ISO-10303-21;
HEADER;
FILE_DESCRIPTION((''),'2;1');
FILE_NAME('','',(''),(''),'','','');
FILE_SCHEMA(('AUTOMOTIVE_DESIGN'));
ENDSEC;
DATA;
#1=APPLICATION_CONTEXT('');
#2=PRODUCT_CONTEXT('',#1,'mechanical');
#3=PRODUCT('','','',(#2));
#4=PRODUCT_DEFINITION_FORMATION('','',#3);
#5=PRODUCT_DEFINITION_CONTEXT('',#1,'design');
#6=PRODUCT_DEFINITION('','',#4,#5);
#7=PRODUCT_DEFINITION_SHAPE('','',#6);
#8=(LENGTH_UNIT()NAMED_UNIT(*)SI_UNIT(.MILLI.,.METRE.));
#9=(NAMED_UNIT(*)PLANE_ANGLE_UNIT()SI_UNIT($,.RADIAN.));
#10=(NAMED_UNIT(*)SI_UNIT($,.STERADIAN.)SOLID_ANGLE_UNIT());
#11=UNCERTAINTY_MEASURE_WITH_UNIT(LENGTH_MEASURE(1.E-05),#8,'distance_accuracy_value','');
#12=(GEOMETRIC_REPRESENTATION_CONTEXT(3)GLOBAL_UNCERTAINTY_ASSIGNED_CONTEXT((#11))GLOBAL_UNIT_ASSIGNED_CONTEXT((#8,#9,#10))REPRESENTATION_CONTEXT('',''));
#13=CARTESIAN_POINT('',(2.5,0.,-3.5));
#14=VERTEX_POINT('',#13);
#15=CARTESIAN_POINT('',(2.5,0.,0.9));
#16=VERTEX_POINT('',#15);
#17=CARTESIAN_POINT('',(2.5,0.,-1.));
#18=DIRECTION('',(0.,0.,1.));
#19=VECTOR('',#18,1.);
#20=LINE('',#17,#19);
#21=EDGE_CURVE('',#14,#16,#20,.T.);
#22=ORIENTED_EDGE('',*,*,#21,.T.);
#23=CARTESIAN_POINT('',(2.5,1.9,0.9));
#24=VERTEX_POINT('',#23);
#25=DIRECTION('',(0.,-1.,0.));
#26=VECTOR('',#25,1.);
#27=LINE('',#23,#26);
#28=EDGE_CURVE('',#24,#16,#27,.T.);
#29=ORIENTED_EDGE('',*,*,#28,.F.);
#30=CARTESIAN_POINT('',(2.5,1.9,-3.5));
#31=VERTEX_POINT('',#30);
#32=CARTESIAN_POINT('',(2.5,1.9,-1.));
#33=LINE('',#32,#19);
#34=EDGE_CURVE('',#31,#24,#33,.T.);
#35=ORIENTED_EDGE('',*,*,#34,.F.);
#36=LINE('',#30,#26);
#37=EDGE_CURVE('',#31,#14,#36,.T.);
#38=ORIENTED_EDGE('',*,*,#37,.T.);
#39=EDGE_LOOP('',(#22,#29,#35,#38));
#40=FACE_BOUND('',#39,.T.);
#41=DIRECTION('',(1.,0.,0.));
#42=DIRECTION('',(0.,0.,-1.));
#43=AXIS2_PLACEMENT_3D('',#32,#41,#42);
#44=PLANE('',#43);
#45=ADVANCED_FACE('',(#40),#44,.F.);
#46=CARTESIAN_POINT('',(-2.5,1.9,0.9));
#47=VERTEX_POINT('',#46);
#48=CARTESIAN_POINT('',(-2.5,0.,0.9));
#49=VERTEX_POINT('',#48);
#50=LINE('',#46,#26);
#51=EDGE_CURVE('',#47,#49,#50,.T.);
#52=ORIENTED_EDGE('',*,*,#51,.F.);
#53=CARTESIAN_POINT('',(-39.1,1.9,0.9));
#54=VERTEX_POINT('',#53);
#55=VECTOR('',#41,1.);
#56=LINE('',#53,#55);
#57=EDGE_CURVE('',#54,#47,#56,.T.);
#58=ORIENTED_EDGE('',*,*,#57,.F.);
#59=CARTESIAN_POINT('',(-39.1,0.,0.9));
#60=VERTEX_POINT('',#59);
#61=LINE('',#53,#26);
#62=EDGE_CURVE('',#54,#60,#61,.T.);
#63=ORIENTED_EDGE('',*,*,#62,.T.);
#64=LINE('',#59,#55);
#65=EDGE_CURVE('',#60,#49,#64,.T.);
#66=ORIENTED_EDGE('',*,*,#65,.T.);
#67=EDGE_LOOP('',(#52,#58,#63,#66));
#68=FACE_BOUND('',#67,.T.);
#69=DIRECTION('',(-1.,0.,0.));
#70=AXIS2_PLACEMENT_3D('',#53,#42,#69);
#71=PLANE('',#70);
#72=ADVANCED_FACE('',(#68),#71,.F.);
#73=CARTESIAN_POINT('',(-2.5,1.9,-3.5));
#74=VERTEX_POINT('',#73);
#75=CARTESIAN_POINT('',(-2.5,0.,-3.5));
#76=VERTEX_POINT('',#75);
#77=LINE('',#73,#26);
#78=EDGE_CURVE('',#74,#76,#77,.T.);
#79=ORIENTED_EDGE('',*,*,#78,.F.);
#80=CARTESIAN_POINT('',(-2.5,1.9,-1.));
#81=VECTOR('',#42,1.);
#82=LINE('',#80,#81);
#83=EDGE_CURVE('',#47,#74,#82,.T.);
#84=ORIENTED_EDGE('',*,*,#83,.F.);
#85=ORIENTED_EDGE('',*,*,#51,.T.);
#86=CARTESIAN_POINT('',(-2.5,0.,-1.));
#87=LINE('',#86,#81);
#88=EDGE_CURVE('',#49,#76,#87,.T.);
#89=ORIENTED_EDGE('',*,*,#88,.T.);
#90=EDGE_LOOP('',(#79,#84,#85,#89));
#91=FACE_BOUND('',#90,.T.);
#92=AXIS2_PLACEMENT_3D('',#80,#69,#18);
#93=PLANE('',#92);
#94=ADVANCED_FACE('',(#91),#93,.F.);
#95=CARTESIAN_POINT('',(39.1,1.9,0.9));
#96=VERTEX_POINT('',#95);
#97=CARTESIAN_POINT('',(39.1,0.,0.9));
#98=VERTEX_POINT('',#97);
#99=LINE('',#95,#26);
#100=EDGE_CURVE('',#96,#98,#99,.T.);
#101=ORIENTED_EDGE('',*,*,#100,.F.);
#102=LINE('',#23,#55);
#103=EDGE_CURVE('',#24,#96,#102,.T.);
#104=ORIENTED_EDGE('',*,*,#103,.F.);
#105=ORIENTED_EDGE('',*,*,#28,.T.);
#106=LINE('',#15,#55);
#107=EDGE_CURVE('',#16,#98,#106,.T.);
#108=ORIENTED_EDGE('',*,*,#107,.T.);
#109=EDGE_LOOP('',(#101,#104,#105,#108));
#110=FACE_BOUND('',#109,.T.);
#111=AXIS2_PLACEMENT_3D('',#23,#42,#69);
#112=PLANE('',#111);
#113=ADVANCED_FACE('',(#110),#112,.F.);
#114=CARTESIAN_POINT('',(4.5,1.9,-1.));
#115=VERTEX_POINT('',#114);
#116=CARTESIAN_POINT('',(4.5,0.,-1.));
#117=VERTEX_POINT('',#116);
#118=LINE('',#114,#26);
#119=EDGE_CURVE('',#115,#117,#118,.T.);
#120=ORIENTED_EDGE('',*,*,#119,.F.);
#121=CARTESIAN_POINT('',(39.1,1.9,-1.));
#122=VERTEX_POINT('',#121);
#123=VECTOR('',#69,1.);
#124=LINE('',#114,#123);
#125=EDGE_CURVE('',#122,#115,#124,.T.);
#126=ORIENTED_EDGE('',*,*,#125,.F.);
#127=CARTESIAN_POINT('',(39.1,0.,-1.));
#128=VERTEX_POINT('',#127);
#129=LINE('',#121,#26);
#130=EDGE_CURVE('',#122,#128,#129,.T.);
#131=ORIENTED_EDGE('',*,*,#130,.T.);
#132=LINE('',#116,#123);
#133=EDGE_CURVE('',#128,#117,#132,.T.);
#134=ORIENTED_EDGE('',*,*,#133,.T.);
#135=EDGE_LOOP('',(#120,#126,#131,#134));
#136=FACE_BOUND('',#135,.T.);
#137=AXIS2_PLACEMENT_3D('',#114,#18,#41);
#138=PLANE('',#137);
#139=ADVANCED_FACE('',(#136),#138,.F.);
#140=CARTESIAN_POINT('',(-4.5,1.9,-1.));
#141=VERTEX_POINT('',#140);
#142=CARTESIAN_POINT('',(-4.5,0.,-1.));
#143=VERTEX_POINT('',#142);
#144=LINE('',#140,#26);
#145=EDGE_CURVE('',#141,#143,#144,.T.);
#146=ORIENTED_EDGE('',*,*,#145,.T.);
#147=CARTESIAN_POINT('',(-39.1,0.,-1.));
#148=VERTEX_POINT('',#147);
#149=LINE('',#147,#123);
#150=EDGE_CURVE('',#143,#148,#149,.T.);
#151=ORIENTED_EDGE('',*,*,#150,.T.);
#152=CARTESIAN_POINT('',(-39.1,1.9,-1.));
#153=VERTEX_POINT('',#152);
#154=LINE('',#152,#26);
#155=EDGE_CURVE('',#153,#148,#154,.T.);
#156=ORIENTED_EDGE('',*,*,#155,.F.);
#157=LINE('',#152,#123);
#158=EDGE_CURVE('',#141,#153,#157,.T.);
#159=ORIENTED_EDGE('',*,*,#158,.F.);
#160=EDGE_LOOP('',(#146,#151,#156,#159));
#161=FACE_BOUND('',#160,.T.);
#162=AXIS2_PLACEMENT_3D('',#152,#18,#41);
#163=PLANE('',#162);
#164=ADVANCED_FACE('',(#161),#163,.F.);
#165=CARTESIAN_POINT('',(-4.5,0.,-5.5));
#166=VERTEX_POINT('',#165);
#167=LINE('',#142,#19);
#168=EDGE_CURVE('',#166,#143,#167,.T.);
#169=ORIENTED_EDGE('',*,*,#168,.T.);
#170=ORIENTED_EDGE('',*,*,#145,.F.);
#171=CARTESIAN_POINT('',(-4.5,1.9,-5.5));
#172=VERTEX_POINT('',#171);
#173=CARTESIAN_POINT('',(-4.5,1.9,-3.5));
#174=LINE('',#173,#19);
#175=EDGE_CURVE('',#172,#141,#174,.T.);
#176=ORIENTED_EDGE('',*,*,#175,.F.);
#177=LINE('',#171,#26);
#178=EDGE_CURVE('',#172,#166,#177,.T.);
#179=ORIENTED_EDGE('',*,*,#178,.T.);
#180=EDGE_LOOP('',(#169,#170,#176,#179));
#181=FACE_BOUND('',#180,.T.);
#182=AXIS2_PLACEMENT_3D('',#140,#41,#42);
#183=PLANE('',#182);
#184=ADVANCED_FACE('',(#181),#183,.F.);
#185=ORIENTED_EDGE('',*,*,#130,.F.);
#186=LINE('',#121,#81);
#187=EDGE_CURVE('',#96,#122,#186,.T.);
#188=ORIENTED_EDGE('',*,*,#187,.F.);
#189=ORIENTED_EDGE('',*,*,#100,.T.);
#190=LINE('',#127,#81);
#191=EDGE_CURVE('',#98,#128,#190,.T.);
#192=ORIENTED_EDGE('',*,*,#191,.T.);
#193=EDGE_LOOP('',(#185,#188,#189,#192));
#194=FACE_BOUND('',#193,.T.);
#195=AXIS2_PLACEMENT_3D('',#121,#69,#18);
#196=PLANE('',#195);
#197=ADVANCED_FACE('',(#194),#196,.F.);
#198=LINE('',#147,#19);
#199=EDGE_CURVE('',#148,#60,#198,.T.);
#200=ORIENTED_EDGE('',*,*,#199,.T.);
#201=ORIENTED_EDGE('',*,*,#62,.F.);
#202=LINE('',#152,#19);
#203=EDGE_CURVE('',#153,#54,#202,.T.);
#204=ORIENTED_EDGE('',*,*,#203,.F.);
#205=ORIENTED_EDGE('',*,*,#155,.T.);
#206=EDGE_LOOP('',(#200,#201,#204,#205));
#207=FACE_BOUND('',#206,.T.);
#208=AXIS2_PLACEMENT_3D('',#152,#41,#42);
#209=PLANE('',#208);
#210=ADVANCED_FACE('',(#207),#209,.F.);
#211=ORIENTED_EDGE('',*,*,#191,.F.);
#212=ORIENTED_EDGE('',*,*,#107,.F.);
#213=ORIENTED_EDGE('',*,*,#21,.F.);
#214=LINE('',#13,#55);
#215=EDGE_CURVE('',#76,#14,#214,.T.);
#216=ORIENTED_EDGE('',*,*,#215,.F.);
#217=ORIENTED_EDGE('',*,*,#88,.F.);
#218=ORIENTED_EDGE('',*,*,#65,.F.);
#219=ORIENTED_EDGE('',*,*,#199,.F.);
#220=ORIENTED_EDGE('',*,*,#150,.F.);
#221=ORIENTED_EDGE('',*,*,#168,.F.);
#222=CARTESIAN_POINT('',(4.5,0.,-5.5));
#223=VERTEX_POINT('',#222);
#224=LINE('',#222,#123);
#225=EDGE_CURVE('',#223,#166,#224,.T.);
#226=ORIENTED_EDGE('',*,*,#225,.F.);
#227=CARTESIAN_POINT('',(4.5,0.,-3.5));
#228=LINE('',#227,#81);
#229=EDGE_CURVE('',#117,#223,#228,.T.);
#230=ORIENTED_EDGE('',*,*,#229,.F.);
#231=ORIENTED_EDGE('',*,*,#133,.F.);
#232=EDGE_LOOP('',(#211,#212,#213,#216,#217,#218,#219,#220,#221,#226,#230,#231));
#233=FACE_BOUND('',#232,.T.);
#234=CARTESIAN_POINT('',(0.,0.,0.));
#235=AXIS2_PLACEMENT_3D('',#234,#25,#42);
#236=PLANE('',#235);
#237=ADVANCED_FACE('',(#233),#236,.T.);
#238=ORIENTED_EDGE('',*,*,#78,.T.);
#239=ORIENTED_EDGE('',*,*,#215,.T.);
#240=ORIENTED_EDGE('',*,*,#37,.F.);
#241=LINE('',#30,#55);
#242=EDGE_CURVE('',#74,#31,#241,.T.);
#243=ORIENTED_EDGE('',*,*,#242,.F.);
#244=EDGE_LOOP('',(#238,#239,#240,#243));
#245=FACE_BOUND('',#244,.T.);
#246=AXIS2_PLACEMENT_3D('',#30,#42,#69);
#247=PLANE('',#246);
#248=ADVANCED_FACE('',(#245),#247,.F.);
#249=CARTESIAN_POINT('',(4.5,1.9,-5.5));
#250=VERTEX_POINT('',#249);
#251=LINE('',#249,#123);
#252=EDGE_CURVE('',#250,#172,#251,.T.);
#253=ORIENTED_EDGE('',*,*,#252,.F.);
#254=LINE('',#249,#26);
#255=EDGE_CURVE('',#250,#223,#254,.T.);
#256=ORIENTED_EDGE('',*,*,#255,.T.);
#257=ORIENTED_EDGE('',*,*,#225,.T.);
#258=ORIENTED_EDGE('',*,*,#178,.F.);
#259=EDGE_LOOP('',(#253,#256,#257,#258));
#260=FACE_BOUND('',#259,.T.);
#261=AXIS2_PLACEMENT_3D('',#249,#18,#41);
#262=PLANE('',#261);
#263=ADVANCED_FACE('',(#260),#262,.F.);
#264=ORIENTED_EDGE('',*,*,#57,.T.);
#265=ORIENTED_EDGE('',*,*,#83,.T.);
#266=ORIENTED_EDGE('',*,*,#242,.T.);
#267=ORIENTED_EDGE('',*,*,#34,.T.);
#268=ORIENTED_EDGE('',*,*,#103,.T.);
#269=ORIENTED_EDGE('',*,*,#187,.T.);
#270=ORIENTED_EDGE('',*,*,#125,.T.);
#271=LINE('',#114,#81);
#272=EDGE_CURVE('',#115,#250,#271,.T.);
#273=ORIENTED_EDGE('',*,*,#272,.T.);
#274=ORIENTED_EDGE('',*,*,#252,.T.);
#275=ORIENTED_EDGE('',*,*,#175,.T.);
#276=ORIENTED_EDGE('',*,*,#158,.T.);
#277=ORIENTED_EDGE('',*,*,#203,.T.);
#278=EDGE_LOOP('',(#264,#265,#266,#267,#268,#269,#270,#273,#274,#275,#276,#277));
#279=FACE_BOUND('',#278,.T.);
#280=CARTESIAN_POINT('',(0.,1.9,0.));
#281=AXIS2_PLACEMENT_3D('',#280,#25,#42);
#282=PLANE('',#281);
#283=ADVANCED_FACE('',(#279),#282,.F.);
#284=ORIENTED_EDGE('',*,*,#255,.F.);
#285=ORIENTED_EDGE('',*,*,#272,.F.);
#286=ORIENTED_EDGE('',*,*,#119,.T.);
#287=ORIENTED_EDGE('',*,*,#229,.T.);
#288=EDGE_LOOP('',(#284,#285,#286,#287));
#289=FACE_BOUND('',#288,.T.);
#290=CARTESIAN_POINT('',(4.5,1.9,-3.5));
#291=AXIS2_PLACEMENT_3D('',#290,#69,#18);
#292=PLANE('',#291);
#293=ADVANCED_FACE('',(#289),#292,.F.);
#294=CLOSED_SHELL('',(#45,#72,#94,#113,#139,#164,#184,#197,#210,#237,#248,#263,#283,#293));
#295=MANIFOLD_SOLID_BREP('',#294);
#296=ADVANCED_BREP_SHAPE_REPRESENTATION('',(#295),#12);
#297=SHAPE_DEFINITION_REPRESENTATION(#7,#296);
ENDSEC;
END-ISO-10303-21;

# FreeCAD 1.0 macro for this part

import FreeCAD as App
import Part
import Sketcher
from FreeCAD import Vector
Q = App.Units.Quantity

doc = App.newDocument("Part")
params = doc.addObject("Spreadsheet::Sheet", "Params")
for row, (alias, value) in enumerate([
    ("sketch1_width", "5 mm"),
    ("sketch1_width2", "9 mm"),
    ("sketch1_width3", "36.6 mm"),
    ("sketch1_height", "4.4 mm"),
    ("sketch1_height2", "1.9 mm"),
    ("pad1_length", "1.9 mm"),
], start=1):
    params.set(f"A{row}", alias)
    params.set(f"B{row}", "=" + value)
    params.setAlias(f"B{row}", alias)

body = doc.addObject("PartDesign::Body", "Body")

sketch1 = body.newObject("Sketcher::SketchObject", "Sketch")
sketch1.AttachmentSupport = (doc.getObject("XZ_Plane"), [""])
sketch1.MapMode = "FlatFace"
sketch1.addGeometry([
    Part.LineSegment(Vector(-2.5, -3.5, 0), Vector(2.5, -3.5, 0)),
    Part.LineSegment(Vector(2.5, -3.5, 0), Vector(2.5, 0.9, 0)),
    Part.LineSegment(Vector(2.5, 0.9, 0), Vector(39.1, 0.9, 0)),
    Part.LineSegment(Vector(39.1, 0.9, 0), Vector(39.1, -1, 0)),
    Part.LineSegment(Vector(39.1, -1, 0), Vector(4.5, -1, 0)),
    Part.LineSegment(Vector(4.5, -1, 0), Vector(4.5, -5.5, 0)),
    Part.LineSegment(Vector(4.5, -5.5, 0), Vector(-4.5, -5.5, 0)),
    Part.LineSegment(Vector(-4.5, -5.5, 0), Vector(-4.5, -1, 0)),
    Part.LineSegment(Vector(-4.5, -1, 0), Vector(-39.1, -1, 0)),
    Part.LineSegment(Vector(-39.1, -1, 0), Vector(-39.1, 0.9, 0)),
    Part.LineSegment(Vector(-39.1, 0.9, 0), Vector(-2.5, 0.9, 0)),
    Part.LineSegment(Vector(-2.5, 0.9, 0), Vector(-2.5, -3.5, 0)),
], False)
sketch1.addConstraint([
    Sketcher.Constraint("Coincident", 0, 2, 1, 1),
    Sketcher.Constraint("Coincident", 1, 2, 2, 1),
    Sketcher.Constraint("Coincident", 2, 2, 3, 1),
    Sketcher.Constraint("Coincident", 3, 2, 4, 1),
    Sketcher.Constraint("Coincident", 4, 2, 5, 1),
    Sketcher.Constraint("Coincident", 5, 2, 6, 1),
    Sketcher.Constraint("Coincident", 6, 2, 7, 1),
    Sketcher.Constraint("Coincident", 7, 2, 8, 1),
    Sketcher.Constraint("Coincident", 8, 2, 9, 1),
    Sketcher.Constraint("Coincident", 9, 2, 10, 1),
    Sketcher.Constraint("Coincident", 10, 2, 11, 1),
    Sketcher.Constraint("Coincident", 11, 2, 0, 1),
    Sketcher.Constraint("Horizontal", 0),
    Sketcher.Constraint("Vertical", 1),
    Sketcher.Constraint("Horizontal", 2),
    Sketcher.Constraint("Vertical", 3),
    Sketcher.Constraint("Horizontal", 4),
    Sketcher.Constraint("Vertical", 5),
    Sketcher.Constraint("Horizontal", 6),
    Sketcher.Constraint("Vertical", 7),
    Sketcher.Constraint("Horizontal", 8),
    Sketcher.Constraint("Vertical", 9),
    Sketcher.Constraint("Horizontal", 10),
    Sketcher.Constraint("Vertical", 11),
    Sketcher.Constraint("Symmetric", 4, 2, 7, 2, -2),
    Sketcher.Constraint("Symmetric", 2, 2, 9, 2, -2),
    Sketcher.Constraint("Equal", 2, 10),
    Sketcher.Constraint("DistanceX", 0, 1, 0, 2, Q("5 mm")),
    Sketcher.Constraint("DistanceX", 6, 2, 6, 1, Q("9 mm")),
    Sketcher.Constraint("DistanceX", 2, 1, 2, 2, Q("36.6 mm")),
    Sketcher.Constraint("DistanceY", 1, 1, 1, 2, Q("4.4 mm")),
    Sketcher.Constraint("DistanceY", 3, 2, 3, 1, Q("1.9 mm")),
    Sketcher.Constraint("DistanceY", 5, 2, 5, 1, Q("4.5 mm")),
    Sketcher.Constraint("DistanceY", 3, 2, -1, 1, Q("1 mm")),
])
sketch1.setExpression("Constraints[27]", "Params.sketch1_width")
sketch1.setExpression("Constraints[28]", "Params.sketch1_width2")
sketch1.setExpression("Constraints[29]", "Params.sketch1_width3")
sketch1.setExpression("Constraints[30]", "Params.sketch1_height")
sketch1.setExpression("Constraints[31]", "Params.sketch1_height2")
pad1 = body.newObject("PartDesign::Pad", "Pad")
pad1.Profile = sketch1
pad1.setExpression("Length", "Params.pad1_length")
pad1.Reversed = True

doc.recompute()
